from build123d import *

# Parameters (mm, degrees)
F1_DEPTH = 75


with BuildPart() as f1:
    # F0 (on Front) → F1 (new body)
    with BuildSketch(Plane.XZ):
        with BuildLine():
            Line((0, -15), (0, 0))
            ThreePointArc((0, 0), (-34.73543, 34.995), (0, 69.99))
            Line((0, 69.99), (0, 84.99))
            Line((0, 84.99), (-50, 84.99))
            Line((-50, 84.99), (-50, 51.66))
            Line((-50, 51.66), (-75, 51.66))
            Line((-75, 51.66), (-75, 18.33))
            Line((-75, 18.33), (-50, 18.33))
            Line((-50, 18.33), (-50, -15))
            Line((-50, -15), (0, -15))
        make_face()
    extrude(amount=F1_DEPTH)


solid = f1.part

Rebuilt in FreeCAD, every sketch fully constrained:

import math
import FreeCAD as App
import Part
import Sketcher

V = App.Vector
Q = App.Units.Quantity

doc = App.newDocument("Part")
body = doc.addObject("PartDesign::Body", "Body")

sketch1 = body.newObject("Sketcher::SketchObject", "Sketch")
sketch1.AttachmentSupport = (doc.getObject("XZ_Plane"), [""])
sketch1.MapMode = "FlatFace"
sketch1.addGeometry(Part.LineSegment(V(0, -15, 0), V(0, 0, 0)), False)
sketch1.addGeometry(Part.ArcOfCircle(Part.Circle(V(0.26054, 34.995, 0), V(0, 0, 1), 34.99597), math.radians(90.426563), math.radians(269.573437)), False)
sketch1.addGeometry(Part.LineSegment(V(0, 69.99, 0), V(0, 84.99, 0)), False)
sketch1.addGeometry(Part.LineSegment(V(0, 84.99, 0), V(-50, 84.99, 0)), False)
sketch1.addGeometry(Part.LineSegment(V(-50, 84.99, 0), V(-50, 51.66, 0)), False)
sketch1.addGeometry(Part.LineSegment(V(-50, 51.66, 0), V(-75, 51.66, 0)), False)
sketch1.addGeometry(Part.LineSegment(V(-75, 51.66, 0), V(-75, 18.33, 0)), False)
sketch1.addGeometry(Part.LineSegment(V(-75, 18.33, 0), V(-50, 18.33, 0)), False)
sketch1.addGeometry(Part.LineSegment(V(-50, 18.33, 0), V(-50, -15, 0)), False)
sketch1.addGeometry(Part.LineSegment(V(-50, -15, 0), V(0, -15, 0)), False)
sketch1.addConstraint(Sketcher.Constraint("Coincident", 0, 2, 1, 2))
sketch1.addConstraint(Sketcher.Constraint("Coincident", 1, 1, 2, 1))
sketch1.addConstraint(Sketcher.Constraint("Coincident", 2, 2, 3, 1))
sketch1.addConstraint(Sketcher.Constraint("Coincident", 3, 2, 4, 1))
sketch1.addConstraint(Sketcher.Constraint("Coincident", 4, 2, 5, 1))
sketch1.addConstraint(Sketcher.Constraint("Coincident", 5, 2, 6, 1))
sketch1.addConstraint(Sketcher.Constraint("Coincident", 6, 2, 7, 1))
sketch1.addConstraint(Sketcher.Constraint("Coincident", 7, 2, 8, 1))
sketch1.addConstraint(Sketcher.Constraint("Coincident", 8, 2, 9, 1))
sketch1.addConstraint(Sketcher.Constraint("Coincident", 9, 2, 0, 1))
sketch1.addConstraint(Sketcher.Constraint("Vertical", 0))
sketch1.addConstraint(Sketcher.Constraint("Vertical", 2))
sketch1.addConstraint(Sketcher.Constraint("Horizontal", 3))
sketch1.addConstraint(Sketcher.Constraint("Vertical", 4))
sketch1.addConstraint(Sketcher.Constraint("Horizontal", 5))
sketch1.addConstraint(Sketcher.Constraint("Vertical", 6))
sketch1.addConstraint(Sketcher.Constraint("Horizontal", 7))
sketch1.addConstraint(Sketcher.Constraint("Vertical", 8))
sketch1.addConstraint(Sketcher.Constraint("Horizontal", 9))
sketch1.addConstraint(Sketcher.Constraint("Coincident", 0, 2, -1, 1))
sketch1.addConstraint(Sketcher.Constraint("PointOnObject", 1, 1, -2))
sketch1.addConstraint(Sketcher.Constraint("Vertical", 4, 2, 7, 2))
sketch1.addConstraint(Sketcher.Constraint("Equal", 0, 2))
sketch1.addConstraint(Sketcher.Constraint("Equal", 4, 6))
sketch1.addConstraint(Sketcher.Constraint("Equal", 6, 8))
sketch1.addConstraint(Sketcher.Constraint("DistanceX", 3, 2, 3, 1, Q("50 mm")))
sketch1.addConstraint(Sketcher.Constraint("DistanceX", 5, 2, 5, 1, Q("25 mm")))
sketch1.addConstraint(Sketcher.Constraint("DistanceY", 0, 1, 0, 2, Q("15 mm")))
sketch1.addConstraint(Sketcher.Constraint("DistanceY", 4, 2, 4, 1, Q("33.33 mm")))
sketch1.addConstraint(Sketcher.Constraint("Radius", 1, Q("34.99597 mm")))
pad1 = body.newObject("PartDesign::Pad", "Pad")
pad1.Profile = sketch1
pad1.Length = 75

doc.recompute()
